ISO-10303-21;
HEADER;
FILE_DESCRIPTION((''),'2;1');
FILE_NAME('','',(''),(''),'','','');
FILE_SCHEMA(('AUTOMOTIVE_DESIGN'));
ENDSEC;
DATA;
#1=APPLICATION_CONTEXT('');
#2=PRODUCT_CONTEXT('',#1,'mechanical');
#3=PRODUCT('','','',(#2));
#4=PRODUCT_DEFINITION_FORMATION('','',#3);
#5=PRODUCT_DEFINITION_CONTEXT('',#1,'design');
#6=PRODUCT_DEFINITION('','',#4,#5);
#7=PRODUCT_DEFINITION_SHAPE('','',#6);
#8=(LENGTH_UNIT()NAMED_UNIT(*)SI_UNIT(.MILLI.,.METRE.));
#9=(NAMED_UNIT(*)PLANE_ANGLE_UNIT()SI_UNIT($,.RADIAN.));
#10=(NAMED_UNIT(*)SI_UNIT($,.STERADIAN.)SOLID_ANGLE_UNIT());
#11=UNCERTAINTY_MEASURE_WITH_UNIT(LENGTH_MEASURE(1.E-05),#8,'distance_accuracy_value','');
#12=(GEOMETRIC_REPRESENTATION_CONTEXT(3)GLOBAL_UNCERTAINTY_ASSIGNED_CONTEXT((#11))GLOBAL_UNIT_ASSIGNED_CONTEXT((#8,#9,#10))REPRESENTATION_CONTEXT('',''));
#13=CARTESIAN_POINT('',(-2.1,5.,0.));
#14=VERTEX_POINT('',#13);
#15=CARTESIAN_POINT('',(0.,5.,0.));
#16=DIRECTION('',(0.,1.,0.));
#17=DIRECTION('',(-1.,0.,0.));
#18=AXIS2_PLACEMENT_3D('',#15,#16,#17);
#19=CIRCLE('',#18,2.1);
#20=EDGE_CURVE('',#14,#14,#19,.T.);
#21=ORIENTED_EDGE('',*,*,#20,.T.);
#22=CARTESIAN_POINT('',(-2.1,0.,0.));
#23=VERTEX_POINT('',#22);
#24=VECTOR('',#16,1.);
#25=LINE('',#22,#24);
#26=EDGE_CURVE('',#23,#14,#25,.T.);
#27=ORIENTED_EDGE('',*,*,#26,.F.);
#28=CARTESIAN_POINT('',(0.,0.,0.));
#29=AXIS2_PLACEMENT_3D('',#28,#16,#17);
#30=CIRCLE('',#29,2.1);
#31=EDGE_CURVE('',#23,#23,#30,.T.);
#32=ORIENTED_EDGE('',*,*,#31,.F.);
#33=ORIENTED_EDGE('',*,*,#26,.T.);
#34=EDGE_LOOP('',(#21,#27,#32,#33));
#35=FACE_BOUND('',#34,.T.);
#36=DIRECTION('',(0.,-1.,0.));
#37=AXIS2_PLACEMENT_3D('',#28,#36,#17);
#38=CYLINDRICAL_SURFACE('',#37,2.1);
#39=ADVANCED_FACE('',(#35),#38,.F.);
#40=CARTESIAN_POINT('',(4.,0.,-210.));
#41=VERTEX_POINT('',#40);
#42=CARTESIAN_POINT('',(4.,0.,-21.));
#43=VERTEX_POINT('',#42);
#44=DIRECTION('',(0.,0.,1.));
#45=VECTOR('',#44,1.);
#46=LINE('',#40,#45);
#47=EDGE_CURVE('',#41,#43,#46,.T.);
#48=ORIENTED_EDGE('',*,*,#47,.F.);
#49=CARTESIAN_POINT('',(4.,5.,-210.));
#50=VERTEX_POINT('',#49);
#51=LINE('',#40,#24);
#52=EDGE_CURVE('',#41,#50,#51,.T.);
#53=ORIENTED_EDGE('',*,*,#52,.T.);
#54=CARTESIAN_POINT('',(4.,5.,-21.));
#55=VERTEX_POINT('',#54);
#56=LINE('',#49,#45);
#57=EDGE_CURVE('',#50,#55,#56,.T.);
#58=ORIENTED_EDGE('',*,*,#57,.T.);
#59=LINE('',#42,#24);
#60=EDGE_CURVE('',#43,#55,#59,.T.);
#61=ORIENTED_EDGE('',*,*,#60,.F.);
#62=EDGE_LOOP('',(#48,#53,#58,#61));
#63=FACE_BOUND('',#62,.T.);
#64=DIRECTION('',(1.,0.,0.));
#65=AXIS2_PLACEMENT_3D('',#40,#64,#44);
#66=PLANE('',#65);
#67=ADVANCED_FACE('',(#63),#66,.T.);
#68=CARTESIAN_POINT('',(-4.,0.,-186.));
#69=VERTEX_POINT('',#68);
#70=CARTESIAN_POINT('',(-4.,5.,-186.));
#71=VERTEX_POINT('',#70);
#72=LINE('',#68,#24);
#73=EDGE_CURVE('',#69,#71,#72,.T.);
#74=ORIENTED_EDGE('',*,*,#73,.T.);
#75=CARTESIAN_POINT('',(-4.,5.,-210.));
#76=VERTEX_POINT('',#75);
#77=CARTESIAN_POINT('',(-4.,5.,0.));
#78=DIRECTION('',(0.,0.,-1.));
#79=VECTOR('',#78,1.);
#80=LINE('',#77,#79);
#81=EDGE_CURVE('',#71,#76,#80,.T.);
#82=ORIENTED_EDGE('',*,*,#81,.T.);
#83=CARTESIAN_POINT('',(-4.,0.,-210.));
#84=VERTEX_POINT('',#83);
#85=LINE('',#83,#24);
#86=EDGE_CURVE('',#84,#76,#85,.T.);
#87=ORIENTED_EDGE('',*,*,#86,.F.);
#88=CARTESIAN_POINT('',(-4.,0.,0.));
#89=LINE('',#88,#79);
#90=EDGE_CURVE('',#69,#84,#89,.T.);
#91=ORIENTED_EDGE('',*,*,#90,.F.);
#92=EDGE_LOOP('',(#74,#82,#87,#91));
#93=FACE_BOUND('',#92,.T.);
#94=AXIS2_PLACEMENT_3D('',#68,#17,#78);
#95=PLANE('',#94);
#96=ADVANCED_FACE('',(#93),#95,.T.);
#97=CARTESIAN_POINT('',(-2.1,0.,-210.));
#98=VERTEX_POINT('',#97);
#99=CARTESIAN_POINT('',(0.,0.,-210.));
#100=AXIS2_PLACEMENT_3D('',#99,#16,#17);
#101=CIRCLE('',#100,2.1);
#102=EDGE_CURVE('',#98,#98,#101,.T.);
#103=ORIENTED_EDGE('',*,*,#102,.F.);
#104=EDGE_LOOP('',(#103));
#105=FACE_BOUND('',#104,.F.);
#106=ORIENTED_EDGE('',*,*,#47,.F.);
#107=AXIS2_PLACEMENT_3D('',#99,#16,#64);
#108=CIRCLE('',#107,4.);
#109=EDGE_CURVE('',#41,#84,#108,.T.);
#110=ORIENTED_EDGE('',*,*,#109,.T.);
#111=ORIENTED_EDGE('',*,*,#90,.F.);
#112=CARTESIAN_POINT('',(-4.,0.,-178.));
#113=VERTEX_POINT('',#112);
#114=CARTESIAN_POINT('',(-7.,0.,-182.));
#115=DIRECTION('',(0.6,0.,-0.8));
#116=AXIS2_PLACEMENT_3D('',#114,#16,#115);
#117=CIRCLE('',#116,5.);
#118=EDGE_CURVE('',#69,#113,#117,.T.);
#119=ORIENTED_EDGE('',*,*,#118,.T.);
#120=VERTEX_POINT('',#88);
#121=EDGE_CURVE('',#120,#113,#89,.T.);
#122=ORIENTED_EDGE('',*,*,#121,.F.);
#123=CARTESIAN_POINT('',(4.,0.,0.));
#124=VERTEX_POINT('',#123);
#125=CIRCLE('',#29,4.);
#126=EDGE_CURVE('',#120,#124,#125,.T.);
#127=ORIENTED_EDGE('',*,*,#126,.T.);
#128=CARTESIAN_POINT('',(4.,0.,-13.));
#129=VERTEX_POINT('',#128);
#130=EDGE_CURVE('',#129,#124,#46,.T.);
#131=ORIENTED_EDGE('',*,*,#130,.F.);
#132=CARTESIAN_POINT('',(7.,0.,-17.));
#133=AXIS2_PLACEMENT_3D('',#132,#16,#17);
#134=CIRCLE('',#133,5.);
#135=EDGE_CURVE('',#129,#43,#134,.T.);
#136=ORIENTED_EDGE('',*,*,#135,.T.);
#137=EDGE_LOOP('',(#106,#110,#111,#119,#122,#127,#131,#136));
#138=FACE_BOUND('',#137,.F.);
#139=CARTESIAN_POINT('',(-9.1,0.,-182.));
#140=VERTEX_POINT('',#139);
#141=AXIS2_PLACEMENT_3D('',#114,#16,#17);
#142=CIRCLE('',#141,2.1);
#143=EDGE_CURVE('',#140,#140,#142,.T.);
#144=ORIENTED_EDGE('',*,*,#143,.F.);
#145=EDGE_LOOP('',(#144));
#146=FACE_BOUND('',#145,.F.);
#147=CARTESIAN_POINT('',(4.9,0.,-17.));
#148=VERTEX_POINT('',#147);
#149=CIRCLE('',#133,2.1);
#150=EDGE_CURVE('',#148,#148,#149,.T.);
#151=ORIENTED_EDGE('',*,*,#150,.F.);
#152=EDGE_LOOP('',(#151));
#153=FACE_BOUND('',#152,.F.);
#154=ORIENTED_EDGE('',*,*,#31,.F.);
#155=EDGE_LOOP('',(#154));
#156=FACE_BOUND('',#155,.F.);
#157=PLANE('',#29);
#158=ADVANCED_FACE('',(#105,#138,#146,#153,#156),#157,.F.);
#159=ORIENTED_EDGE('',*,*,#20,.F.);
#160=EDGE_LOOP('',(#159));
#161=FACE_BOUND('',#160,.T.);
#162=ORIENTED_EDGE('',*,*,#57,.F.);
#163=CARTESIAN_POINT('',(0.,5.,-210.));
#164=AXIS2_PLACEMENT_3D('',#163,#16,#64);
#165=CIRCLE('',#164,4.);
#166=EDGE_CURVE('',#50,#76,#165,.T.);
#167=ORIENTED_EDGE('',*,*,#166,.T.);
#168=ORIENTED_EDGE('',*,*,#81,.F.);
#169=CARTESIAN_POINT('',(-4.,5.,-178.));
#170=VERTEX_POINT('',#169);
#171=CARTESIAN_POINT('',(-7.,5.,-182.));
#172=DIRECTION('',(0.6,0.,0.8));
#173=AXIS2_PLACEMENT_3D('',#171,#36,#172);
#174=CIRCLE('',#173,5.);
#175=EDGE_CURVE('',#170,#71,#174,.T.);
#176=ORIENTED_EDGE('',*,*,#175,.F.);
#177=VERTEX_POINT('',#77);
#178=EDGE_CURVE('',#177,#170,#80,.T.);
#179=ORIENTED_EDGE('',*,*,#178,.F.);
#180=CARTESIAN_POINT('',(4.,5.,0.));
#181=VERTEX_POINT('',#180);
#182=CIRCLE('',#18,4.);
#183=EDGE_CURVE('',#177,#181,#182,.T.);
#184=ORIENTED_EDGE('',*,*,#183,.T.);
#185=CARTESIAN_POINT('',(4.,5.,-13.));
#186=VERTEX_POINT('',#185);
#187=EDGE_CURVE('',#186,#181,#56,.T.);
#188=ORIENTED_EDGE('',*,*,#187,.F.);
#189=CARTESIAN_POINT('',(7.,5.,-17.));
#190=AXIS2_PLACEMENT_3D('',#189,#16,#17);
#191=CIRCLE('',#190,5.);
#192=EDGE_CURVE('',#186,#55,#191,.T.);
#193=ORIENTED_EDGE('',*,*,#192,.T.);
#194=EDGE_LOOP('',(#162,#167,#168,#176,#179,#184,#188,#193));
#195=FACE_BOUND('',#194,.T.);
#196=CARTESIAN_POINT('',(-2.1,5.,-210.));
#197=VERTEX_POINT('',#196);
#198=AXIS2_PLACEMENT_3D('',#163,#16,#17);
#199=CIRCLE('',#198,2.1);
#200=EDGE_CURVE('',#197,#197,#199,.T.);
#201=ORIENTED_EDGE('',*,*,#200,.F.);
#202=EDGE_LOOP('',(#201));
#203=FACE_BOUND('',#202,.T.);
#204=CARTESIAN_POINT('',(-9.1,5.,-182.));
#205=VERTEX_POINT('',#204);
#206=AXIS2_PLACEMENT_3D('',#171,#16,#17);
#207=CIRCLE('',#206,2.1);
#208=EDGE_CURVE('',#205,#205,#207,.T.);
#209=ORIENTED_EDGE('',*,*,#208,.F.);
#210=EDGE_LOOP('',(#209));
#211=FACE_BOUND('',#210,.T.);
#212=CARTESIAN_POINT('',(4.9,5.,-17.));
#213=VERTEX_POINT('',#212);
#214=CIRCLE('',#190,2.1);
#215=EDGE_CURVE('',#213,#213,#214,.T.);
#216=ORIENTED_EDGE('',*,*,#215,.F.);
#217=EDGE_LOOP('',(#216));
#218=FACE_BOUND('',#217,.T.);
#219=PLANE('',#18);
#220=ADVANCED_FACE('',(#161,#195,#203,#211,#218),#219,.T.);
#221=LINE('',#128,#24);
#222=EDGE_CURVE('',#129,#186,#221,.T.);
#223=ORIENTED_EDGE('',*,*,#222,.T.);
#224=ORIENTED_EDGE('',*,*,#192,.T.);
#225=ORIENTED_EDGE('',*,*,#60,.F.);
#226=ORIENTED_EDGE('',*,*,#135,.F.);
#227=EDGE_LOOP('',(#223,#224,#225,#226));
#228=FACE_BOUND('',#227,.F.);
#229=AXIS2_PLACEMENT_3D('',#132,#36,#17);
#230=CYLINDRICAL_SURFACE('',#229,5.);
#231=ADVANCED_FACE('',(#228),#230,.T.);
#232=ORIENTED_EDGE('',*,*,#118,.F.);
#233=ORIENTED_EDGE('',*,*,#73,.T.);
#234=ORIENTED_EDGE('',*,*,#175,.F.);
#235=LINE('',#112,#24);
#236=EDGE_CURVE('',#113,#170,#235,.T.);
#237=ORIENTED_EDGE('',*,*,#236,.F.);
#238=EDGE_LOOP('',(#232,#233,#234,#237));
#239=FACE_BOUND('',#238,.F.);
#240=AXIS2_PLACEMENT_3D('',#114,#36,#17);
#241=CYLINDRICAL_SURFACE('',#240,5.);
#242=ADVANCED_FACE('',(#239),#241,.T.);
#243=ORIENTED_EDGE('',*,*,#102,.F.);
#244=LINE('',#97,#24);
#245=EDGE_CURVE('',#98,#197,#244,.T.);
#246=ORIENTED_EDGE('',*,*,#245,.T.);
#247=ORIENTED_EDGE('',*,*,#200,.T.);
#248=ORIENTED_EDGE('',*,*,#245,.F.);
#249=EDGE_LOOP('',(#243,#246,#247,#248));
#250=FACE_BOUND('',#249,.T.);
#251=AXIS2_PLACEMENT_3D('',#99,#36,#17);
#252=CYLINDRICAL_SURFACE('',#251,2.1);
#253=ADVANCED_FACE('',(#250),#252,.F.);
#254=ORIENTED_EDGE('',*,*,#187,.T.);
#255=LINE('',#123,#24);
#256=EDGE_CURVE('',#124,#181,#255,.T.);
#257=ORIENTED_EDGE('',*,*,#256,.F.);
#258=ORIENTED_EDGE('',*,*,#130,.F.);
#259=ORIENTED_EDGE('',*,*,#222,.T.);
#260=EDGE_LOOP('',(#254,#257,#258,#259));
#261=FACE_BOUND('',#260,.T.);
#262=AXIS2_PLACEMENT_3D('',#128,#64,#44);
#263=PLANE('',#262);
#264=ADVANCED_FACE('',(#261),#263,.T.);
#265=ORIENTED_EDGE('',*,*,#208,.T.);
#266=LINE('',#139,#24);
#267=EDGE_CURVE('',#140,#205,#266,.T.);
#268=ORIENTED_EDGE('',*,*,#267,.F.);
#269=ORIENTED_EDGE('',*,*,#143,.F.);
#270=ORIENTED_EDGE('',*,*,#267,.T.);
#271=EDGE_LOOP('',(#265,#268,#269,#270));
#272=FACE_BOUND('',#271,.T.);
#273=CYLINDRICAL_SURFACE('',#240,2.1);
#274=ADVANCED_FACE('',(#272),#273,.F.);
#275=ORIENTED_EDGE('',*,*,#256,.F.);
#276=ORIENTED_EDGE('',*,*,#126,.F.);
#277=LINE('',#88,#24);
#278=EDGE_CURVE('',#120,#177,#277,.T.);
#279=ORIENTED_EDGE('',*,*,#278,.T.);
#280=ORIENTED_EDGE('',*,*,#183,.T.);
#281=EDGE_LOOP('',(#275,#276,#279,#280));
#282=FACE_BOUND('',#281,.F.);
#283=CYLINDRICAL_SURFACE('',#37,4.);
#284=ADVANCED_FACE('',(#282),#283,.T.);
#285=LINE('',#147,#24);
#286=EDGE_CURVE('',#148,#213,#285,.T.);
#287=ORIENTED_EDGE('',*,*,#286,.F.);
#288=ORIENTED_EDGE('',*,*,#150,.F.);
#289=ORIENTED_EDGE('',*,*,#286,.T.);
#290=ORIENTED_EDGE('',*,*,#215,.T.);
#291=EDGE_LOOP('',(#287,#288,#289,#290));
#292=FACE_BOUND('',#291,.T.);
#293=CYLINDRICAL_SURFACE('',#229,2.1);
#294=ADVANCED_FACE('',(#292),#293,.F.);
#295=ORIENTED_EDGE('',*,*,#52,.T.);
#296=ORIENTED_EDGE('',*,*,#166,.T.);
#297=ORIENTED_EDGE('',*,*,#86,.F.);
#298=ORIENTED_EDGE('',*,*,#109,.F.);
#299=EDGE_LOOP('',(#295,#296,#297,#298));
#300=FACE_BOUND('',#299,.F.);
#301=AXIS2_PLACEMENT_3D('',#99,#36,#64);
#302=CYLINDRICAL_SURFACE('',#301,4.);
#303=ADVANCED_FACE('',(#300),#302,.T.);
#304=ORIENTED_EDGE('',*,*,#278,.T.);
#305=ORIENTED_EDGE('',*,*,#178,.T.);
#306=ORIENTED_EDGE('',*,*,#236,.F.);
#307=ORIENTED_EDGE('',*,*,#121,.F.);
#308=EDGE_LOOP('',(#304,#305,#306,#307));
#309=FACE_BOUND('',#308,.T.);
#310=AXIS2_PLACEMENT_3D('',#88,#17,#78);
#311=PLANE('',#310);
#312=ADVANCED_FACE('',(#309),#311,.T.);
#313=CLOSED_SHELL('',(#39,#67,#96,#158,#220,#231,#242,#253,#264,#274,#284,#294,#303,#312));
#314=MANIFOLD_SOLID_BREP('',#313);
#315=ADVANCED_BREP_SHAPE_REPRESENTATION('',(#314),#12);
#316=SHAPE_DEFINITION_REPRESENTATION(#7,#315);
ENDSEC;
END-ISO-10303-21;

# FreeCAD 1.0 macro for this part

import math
import FreeCAD as App
import Part
import Sketcher

V = App.Vector

doc = App.newDocument("Part")
body = doc.addObject("PartDesign::Body", "Body")

# Sketch on XZ plane
sketch1 = body.newObject("Sketcher::SketchObject", "Sketch")
sketch1.AttachmentSupport = (doc.getObject("XZ_Plane"), [""])
sketch1.MapMode = "FlatFace"
sketch1.addGeometry(Part.LineSegment(V(-4, -178, 0), V(-4, 0, 0)), False)
sketch1.addGeometry(Part.ArcOfCircle(Part.Circle(V(0, 0, 0), V(0, 0, 1), 4), math.radians(0), math.radians(180)), False)
sketch1.addGeometry(Part.LineSegment(V(4, 0, 0), V(4, -13, 0)), False)
sketch1.addGeometry(Part.ArcOfCircle(Part.Circle(V(7, -17, 0), V(0, 0, 1), 5), math.radians(-126.869898), math.radians(126.869898)), False)
sketch1.addGeometry(Part.LineSegment(V(4, -21, 0), V(4, -210, 0)), False)
sketch1.addGeometry(Part.ArcOfCircle(Part.Circle(V(0, -210, 0), V(0, 0, 1), 4), math.radians(180), math.radians(360)), False)
sketch1.addGeometry(Part.LineSegment(V(-4, -210, 0), V(-4, -186, 0)), False)
sketch1.addGeometry(Part.ArcOfCircle(Part.Circle(V(-7, -182, 0), V(0, 0, 1), 5), math.radians(53.130102), math.radians(306.869898)), False)
sketch1.addGeometry(Part.Circle(V(0, -210, 0), V(0, 0, 1), 2.1), False)
sketch1.addGeometry(Part.Circle(V(0, 0, 0), V(0, 0, 1), 2.1), False)
sketch1.addGeometry(Part.Circle(V(-7, -182, 0), V(0, 0, 1), 2.1), False)
sketch1.addGeometry(Part.Circle(V(7, -17, 0), V(0, 0, 1), 2.1), False)
sketch1.addConstraint(Sketcher.Constraint("Tangent", 0, 2, 1, 2))
sketch1.addConstraint(Sketcher.Constraint("Tangent", 1, 1, 2, 1))
sketch1.addConstraint(Sketcher.Constraint("Coincident", 2, 2, 3, 2))
sketch1.addConstraint(Sketcher.Constraint("Coincident", 3, 1, 4, 1))
sketch1.addConstraint(Sketcher.Constraint("Tangent", 4, 2, 5, 2))
sketch1.addConstraint(Sketcher.Constraint("Tangent", 5, 1, 6, 1))
sketch1.addConstraint(Sketcher.Constraint("Coincident", 6, 2, 7, 2))
sketch1.addConstraint(Sketcher.Constraint("Coincident", 7, 1, 0, 1))
sketch1.addConstraint(Sketcher.Constraint("Vertical", 0))
sketch1.addConstraint(Sketcher.Constraint("Vertical", 2))
sketch1.addConstraint(Sketcher.Constraint("Vertical", 4))
sketch1.addConstraint(Sketcher.Constraint("Vertical", 6))
sketch1.addConstraint(Sketcher.Constraint("Coincident", 1, 3, -1, 1))
sketch1.addConstraint(Sketcher.Constraint("Coincident", 9, 3, -1, 1))
sketch1.addConstraint(Sketcher.Constraint("Coincident", 8, 3, 5, 3))
sketch1.addConstraint(Sketcher.Constraint("Coincident", 10, 3, 7, 3))
sketch1.addConstraint(Sketcher.Constraint("Coincident", 11, 3, 3, 3))
sketch1.addConstraint(Sketcher.Constraint("Equal", 1, 5))
sketch1.addConstraint(Sketcher.Constraint("Equal", 3, 7))
sketch1.addConstraint(Sketcher.Constraint("Equal", 8, 9))
sketch1.addConstraint(Sketcher.Constraint("Equal", 9, 10))
sketch1.addConstraint(Sketcher.Constraint("Equal", 10, 11))
sketch1.addConstraint(Sketcher.Constraint("PointOnObject", 5, 3, -2))
sketch1.addConstraint(Sketcher.Constraint("Radius", 1, 4.0))
sketch1.addConstraint(Sketcher.Constraint("Radius", 3, 5.0))
sketch1.addConstraint(Sketcher.Constraint("Diameter", 8, 4.2))
sketch1.addConstraint(Sketcher.Constraint("DistanceY", 3, 3, -1, 1, 17.0))
sketch1.addConstraint(Sketcher.Constraint("DistanceY", 5, 3, -1, 1, 210.0))
sketch1.addConstraint(Sketcher.Constraint("DistanceY", 7, 3, -1, 1, 182.0))
sketch1.addConstraint(Sketcher.Constraint("DistanceX", 7, 3, 0, 2, 3.0))
sketch1.addConstraint(Sketcher.Constraint("DistanceX", 1, 1, 3, 3, 3.0))
pad1 = body.newObject("PartDesign::Pad", "Pad")
pad1.Profile = sketch1
pad1.Length = 5
pad1.Reversed = True

doc.recompute()
